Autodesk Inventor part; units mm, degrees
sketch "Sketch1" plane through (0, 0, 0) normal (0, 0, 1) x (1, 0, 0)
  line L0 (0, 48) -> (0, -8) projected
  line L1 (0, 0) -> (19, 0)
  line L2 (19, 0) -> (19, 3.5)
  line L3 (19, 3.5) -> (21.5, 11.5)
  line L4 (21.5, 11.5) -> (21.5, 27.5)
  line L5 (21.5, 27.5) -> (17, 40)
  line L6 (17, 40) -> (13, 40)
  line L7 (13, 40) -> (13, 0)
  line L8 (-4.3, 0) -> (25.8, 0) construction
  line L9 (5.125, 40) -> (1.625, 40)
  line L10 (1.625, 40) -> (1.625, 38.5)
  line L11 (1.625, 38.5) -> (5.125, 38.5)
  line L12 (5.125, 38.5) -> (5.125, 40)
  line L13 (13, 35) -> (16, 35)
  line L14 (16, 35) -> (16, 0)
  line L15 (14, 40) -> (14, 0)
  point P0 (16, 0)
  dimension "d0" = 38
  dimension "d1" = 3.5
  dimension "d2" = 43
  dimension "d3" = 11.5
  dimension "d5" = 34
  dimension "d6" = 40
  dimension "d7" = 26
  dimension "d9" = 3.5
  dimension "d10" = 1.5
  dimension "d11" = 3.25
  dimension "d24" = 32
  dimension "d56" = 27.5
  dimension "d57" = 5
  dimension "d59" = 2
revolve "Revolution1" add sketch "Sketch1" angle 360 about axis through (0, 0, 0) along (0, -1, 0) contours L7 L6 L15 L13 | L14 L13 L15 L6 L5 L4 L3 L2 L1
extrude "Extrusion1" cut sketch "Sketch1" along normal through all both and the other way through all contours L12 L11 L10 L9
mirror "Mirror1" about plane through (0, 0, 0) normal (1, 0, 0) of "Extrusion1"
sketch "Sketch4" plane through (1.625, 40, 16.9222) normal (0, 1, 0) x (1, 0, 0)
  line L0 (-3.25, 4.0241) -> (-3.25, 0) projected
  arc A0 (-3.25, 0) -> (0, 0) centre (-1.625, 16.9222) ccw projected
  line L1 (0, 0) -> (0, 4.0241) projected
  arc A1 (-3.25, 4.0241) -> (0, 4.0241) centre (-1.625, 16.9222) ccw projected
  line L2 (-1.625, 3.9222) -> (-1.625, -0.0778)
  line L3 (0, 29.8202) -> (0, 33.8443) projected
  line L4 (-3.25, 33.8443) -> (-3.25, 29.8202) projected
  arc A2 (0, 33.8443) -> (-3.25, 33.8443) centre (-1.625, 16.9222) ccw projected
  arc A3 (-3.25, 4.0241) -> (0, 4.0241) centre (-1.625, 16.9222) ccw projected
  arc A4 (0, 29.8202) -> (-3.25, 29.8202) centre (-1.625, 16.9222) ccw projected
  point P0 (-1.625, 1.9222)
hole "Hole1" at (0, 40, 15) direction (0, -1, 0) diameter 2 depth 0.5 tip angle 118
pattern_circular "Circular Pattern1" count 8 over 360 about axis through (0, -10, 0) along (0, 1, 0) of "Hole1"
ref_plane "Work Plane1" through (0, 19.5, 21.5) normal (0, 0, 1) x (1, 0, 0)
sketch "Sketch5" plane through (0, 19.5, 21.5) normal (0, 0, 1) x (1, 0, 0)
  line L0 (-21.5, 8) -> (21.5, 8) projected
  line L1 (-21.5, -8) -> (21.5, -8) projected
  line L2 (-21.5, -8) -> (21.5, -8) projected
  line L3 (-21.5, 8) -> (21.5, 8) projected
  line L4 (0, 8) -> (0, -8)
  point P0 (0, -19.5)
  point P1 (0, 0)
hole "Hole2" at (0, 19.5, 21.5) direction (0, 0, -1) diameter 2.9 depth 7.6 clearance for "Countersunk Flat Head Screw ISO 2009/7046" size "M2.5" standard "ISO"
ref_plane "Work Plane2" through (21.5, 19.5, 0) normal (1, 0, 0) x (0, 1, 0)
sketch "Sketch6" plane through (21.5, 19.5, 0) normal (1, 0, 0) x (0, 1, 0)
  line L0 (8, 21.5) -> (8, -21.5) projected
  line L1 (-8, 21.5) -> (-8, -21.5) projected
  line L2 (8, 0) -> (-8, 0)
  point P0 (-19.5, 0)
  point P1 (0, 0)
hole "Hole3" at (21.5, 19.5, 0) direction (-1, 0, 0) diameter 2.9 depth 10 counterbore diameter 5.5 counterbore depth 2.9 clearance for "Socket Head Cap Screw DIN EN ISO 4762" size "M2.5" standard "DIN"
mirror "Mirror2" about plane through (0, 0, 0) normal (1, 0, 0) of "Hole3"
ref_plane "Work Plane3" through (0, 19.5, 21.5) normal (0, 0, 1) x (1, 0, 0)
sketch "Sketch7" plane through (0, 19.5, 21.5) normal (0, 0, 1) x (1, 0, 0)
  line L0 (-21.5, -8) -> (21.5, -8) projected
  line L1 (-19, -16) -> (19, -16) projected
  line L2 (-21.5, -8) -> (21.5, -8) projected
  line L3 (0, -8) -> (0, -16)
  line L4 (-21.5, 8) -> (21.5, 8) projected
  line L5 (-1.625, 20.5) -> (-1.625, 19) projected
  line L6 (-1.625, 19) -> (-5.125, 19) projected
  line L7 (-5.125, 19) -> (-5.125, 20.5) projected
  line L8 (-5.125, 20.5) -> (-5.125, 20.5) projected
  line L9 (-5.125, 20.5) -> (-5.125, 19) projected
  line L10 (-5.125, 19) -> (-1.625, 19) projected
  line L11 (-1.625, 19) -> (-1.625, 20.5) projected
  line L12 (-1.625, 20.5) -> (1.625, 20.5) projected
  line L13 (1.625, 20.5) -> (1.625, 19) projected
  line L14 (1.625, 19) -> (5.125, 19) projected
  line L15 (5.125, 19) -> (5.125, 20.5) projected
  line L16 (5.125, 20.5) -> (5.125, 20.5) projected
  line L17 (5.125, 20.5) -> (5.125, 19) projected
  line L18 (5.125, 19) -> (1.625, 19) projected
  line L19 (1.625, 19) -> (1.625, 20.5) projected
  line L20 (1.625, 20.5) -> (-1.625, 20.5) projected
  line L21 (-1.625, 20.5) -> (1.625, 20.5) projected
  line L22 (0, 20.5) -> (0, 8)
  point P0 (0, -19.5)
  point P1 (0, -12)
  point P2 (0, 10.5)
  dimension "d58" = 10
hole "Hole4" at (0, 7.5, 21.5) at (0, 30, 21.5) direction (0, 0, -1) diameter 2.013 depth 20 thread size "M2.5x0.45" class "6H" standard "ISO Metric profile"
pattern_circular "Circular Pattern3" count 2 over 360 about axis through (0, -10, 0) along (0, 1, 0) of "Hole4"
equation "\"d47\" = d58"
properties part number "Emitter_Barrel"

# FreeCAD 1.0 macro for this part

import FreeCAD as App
import Part
import Sketcher
Q = App.Units.Quantity


def add_polygon(sketch, points):
    """Adds a closed chain of lines whose ends are joined by coincident constraints."""
    first, n = sketch.GeometryCount, len(points)
    for a, b in zip(points, points[1:] + points[:1]):
        sketch.addGeometry(Part.LineSegment(App.Vector(*a, 0), App.Vector(*b, 0)), False)
    for i in range(n):
        sketch.addConstraint(Sketcher.Constraint("Coincident", first + i, 2, first + (i + 1) % n, 1))

doc = App.newDocument("Part")
body = doc.addObject("PartDesign::Body", "Body")

# Sketch on XY plane
sketch1 = body.newObject("Sketcher::SketchObject", "Sketch")
sketch1.AttachmentSupport = (doc.getObject("XY_Plane"), [""])
sketch1.MapMode = "FlatFace"
add_polygon(sketch1, [(13, 40), (13, 35), (16, 35), (16, 0), (19, 0), (19, 3.5), (21.5, 11.5), (21.5, 27.5), (17, 40)])  # lines 0-8
sketch1.addConstraint([
    Sketcher.Constraint("Vertical", 0),
    Sketcher.Constraint("Horizontal", 1),
    Sketcher.Constraint("Vertical", 2),
    Sketcher.Constraint("Horizontal", 3),
    Sketcher.Constraint("Vertical", 4),
    Sketcher.Constraint("Vertical", 6),
    Sketcher.Constraint("Horizontal", 8),
    Sketcher.Constraint("PointOnObject", 2, 2, -1),
    Sketcher.Constraint("Equal", 1, 3),
    Sketcher.Constraint("DistanceY", 0, 2, 0, 1, Q("5 mm")),
    Sketcher.Constraint("DistanceY", 4, 1, 4, 2, Q("3.5 mm")),
    Sketcher.Constraint("DistanceY", -1, 1, 7, 2, Q("40 mm")),
    Sketcher.Constraint("DistanceX", 7, 2, 4, 2, Q("2 mm")),
    Sketcher.Constraint("DistanceY", -1, 1, 5, 2, Q("11.5 mm")),
    Sketcher.Constraint("DistanceY", -1, 1, 6, 2, Q("27.5 mm")),
    Sketcher.Constraint("DistanceX", 1, 1, 1, 2, Q("3 mm")),
    Sketcher.Constraint("DistanceX", -1, 1, 0, 2, Q("13 mm")),
    Sketcher.Constraint("Angle", 7, Q("109.7989 deg")),
])
revolution = body.newObject("PartDesign::Revolution", "Revolution")
revolution.Profile = sketch1
revolution.ReferenceAxis = (sketch1, ["V_Axis"])
revolution.Angle = 360

# Sketch on XY plane
sketch2 = body.newObject("Sketcher::SketchObject", "Sketch001")
sketch2.AttachmentSupport = (doc.getObject("XY_Plane"), [""])
sketch2.MapMode = "FlatFace"
add_polygon(sketch2, [(5.1, 38.5), (5.1, 40), (1.6, 40), (1.6, 38.5)])  # lines 0-3
sketch2.addConstraint([
    Sketcher.Constraint("Vertical", 0),
    Sketcher.Constraint("Horizontal", 1),
    Sketcher.Constraint("Vertical", 2),
    Sketcher.Constraint("Horizontal", 3),
    Sketcher.Constraint("DistanceX", 1, 2, 1, 1, Q("3.5 mm")),
    Sketcher.Constraint("DistanceY", 0, 1, 0, 2, Q("1.5 mm")),
    Sketcher.Constraint("DistanceY", -1, 1, 0, 2, Q("40 mm")),
    Sketcher.Constraint("DistanceX", -1, 1, 0, 2, Q("5.125 mm")),
])
pocket1 = body.newObject("PartDesign::Pocket", "Pocket")
pocket1.Profile = sketch2
pocket1.Type = "ThroughAll"
pocket1.Midplane = True
doc.recompute()

mirrored = body.newObject("PartDesign::Mirrored", "Mirrored")
mirrored.Originals = [pocket1]
mirrored.MirrorPlane = (doc.getObject("YZ_Plane"), [""])
body.Tip = mirrored

# Sketch on XZ plane
sketch3 = body.newObject("Sketcher::SketchObject", "Sketch002")
sketch3.AttachmentSupport = (doc.getObject("XZ_Plane"), [""])
sketch3.MapMode = "FlatFace"
sketch3.AttachmentOffset = App.Placement(App.Vector(0, 0, -40), App.Rotation())
sketch3.addGeometry(Part.Circle(App.Vector(0, 15, 0), App.Vector(0, 0, 1), 1), False)
sketch3.addConstraint([
    Sketcher.Constraint("PointOnObject", 0, 3, -2),
    Sketcher.Constraint("Diameter", 0, Q("2 mm")),
    Sketcher.Constraint("DistanceY", -1, 1, 0, 3, Q("15 mm")),
])
doc.recompute()
hole = body.newObject("PartDesign::Hole", "Hole")
hole.Profile = sketch3
hole.ThreadType = "None"
hole.Diameter = 2
hole.DepthType = "Dimension"
hole.Depth = 0.5
hole.DrillPoint = "Angled"
hole.DrillPointAngle = 118
hole.Reversed = True
doc.recompute()

polarpattern = body.newObject("PartDesign::PolarPattern", "PolarPattern")
polarpattern.Originals = [hole]
polarpattern.Axis = (doc.getObject("Y_Axis"), [""])
polarpattern.Angle = 360
polarpattern.Occurrences = 8
body.Tip = polarpattern

# Sketch on XY plane
sketch4 = body.newObject("Sketcher::SketchObject", "Sketch003")
sketch4.AttachmentSupport = (doc.getObject("XY_Plane"), [""])
sketch4.MapMode = "FlatFace"
sketch4.AttachmentOffset = App.Placement(App.Vector(0, 0, 21.5), App.Rotation())
sketch4.addGeometry(Part.Circle(App.Vector(0, 19.5, 0), App.Vector(0, 0, 1), 1.4), False)
sketch4.addConstraint([
    Sketcher.Constraint("PointOnObject", 0, 3, -2),
    Sketcher.Constraint("Diameter", 0, Q("2.9 mm")),
    Sketcher.Constraint("DistanceY", -1, 1, 0, 3, Q("19.5 mm")),
])
doc.recompute()
hole2 = body.newObject("PartDesign::Hole", "Hole001")
hole2.Profile = sketch4
hole2.ThreadType = "None"
hole2.Diameter = 2.9
hole2.DepthType = "Dimension"
hole2.Depth = 7.6
hole2.DrillPoint = "Flat"

# Sketch on YZ plane
sketch5 = body.newObject("Sketcher::SketchObject", "Sketch004")
sketch5.AttachmentSupport = (doc.getObject("YZ_Plane"), [""])
sketch5.MapMode = "FlatFace"
sketch5.AttachmentOffset = App.Placement(App.Vector(0, 0, 21.5), App.Rotation())
sketch5.addGeometry(Part.Circle(App.Vector(19.5, 0, 0), App.Vector(0, 0, 1), 1.4), False)
sketch5.addConstraint([
    Sketcher.Constraint("PointOnObject", 0, 3, -1),
    Sketcher.Constraint("Diameter", 0, Q("2.9 mm")),
    Sketcher.Constraint("DistanceX", -1, 1, 0, 3, Q("19.5 mm")),
])
doc.recompute()
hole3 = body.newObject("PartDesign::Hole", "Hole002")
hole3.Profile = sketch5
hole3.ThreadType = "None"
hole3.Diameter = 2.9
hole3.DepthType = "Dimension"
hole3.Depth = 10
hole3.DrillPoint = "Flat"
hole3.HoleCutType = "Counterbore"
hole3.HoleCutDiameter = 5.5
hole3.HoleCutDepth = 2.9
doc.recompute()

mirrored2 = body.newObject("PartDesign::Mirrored", "Mirrored001")
mirrored2.Originals = [hole3]
mirrored2.MirrorPlane = (doc.getObject("YZ_Plane"), [""])
body.Tip = mirrored2

# Sketch on XY plane
sketch6 = body.newObject("Sketcher::SketchObject", "Sketch005")
sketch6.AttachmentSupport = (doc.getObject("XY_Plane"), [""])
sketch6.MapMode = "FlatFace"
sketch6.AttachmentOffset = App.Placement(App.Vector(0, 0, 21.5), App.Rotation())
sketch6.addGeometry([
    Part.Circle(App.Vector(0, 7.5, 0), App.Vector(0, 0, 1), 1),
    Part.Circle(App.Vector(0, 30, 0), App.Vector(0, 0, 1), 1),
], False)
sketch6.addConstraint([
    Sketcher.Constraint("Equal", 0, 1),
    Sketcher.Constraint("PointOnObject", 0, 3, -2),
    Sketcher.Constraint("PointOnObject", 1, 3, -2),
    Sketcher.Constraint("Diameter", 0, Q("2.013 mm")),
    Sketcher.Constraint("DistanceY", -1, 1, 1, 3, Q("30 mm")),
    Sketcher.Constraint("DistanceY", -1, 1, 0, 3, Q("7.5 mm")),
])
doc.recompute()
hole4 = body.newObject("PartDesign::Hole", "Hole003")
hole4.Profile = sketch6
hole4.ThreadType = "None"
hole4.Diameter = 2.013
hole4.DepthType = "Dimension"
hole4.Depth = 20
hole4.DrillPoint = "Flat"
doc.recompute()

polarpattern2 = body.newObject("PartDesign::PolarPattern", "PolarPattern001")
polarpattern2.Originals = [hole4]
polarpattern2.Axis = (doc.getObject("Y_Axis"), [""])
polarpattern2.Angle = 360
polarpattern2.Occurrences = 2
body.Tip = polarpattern2

doc.recompute()
